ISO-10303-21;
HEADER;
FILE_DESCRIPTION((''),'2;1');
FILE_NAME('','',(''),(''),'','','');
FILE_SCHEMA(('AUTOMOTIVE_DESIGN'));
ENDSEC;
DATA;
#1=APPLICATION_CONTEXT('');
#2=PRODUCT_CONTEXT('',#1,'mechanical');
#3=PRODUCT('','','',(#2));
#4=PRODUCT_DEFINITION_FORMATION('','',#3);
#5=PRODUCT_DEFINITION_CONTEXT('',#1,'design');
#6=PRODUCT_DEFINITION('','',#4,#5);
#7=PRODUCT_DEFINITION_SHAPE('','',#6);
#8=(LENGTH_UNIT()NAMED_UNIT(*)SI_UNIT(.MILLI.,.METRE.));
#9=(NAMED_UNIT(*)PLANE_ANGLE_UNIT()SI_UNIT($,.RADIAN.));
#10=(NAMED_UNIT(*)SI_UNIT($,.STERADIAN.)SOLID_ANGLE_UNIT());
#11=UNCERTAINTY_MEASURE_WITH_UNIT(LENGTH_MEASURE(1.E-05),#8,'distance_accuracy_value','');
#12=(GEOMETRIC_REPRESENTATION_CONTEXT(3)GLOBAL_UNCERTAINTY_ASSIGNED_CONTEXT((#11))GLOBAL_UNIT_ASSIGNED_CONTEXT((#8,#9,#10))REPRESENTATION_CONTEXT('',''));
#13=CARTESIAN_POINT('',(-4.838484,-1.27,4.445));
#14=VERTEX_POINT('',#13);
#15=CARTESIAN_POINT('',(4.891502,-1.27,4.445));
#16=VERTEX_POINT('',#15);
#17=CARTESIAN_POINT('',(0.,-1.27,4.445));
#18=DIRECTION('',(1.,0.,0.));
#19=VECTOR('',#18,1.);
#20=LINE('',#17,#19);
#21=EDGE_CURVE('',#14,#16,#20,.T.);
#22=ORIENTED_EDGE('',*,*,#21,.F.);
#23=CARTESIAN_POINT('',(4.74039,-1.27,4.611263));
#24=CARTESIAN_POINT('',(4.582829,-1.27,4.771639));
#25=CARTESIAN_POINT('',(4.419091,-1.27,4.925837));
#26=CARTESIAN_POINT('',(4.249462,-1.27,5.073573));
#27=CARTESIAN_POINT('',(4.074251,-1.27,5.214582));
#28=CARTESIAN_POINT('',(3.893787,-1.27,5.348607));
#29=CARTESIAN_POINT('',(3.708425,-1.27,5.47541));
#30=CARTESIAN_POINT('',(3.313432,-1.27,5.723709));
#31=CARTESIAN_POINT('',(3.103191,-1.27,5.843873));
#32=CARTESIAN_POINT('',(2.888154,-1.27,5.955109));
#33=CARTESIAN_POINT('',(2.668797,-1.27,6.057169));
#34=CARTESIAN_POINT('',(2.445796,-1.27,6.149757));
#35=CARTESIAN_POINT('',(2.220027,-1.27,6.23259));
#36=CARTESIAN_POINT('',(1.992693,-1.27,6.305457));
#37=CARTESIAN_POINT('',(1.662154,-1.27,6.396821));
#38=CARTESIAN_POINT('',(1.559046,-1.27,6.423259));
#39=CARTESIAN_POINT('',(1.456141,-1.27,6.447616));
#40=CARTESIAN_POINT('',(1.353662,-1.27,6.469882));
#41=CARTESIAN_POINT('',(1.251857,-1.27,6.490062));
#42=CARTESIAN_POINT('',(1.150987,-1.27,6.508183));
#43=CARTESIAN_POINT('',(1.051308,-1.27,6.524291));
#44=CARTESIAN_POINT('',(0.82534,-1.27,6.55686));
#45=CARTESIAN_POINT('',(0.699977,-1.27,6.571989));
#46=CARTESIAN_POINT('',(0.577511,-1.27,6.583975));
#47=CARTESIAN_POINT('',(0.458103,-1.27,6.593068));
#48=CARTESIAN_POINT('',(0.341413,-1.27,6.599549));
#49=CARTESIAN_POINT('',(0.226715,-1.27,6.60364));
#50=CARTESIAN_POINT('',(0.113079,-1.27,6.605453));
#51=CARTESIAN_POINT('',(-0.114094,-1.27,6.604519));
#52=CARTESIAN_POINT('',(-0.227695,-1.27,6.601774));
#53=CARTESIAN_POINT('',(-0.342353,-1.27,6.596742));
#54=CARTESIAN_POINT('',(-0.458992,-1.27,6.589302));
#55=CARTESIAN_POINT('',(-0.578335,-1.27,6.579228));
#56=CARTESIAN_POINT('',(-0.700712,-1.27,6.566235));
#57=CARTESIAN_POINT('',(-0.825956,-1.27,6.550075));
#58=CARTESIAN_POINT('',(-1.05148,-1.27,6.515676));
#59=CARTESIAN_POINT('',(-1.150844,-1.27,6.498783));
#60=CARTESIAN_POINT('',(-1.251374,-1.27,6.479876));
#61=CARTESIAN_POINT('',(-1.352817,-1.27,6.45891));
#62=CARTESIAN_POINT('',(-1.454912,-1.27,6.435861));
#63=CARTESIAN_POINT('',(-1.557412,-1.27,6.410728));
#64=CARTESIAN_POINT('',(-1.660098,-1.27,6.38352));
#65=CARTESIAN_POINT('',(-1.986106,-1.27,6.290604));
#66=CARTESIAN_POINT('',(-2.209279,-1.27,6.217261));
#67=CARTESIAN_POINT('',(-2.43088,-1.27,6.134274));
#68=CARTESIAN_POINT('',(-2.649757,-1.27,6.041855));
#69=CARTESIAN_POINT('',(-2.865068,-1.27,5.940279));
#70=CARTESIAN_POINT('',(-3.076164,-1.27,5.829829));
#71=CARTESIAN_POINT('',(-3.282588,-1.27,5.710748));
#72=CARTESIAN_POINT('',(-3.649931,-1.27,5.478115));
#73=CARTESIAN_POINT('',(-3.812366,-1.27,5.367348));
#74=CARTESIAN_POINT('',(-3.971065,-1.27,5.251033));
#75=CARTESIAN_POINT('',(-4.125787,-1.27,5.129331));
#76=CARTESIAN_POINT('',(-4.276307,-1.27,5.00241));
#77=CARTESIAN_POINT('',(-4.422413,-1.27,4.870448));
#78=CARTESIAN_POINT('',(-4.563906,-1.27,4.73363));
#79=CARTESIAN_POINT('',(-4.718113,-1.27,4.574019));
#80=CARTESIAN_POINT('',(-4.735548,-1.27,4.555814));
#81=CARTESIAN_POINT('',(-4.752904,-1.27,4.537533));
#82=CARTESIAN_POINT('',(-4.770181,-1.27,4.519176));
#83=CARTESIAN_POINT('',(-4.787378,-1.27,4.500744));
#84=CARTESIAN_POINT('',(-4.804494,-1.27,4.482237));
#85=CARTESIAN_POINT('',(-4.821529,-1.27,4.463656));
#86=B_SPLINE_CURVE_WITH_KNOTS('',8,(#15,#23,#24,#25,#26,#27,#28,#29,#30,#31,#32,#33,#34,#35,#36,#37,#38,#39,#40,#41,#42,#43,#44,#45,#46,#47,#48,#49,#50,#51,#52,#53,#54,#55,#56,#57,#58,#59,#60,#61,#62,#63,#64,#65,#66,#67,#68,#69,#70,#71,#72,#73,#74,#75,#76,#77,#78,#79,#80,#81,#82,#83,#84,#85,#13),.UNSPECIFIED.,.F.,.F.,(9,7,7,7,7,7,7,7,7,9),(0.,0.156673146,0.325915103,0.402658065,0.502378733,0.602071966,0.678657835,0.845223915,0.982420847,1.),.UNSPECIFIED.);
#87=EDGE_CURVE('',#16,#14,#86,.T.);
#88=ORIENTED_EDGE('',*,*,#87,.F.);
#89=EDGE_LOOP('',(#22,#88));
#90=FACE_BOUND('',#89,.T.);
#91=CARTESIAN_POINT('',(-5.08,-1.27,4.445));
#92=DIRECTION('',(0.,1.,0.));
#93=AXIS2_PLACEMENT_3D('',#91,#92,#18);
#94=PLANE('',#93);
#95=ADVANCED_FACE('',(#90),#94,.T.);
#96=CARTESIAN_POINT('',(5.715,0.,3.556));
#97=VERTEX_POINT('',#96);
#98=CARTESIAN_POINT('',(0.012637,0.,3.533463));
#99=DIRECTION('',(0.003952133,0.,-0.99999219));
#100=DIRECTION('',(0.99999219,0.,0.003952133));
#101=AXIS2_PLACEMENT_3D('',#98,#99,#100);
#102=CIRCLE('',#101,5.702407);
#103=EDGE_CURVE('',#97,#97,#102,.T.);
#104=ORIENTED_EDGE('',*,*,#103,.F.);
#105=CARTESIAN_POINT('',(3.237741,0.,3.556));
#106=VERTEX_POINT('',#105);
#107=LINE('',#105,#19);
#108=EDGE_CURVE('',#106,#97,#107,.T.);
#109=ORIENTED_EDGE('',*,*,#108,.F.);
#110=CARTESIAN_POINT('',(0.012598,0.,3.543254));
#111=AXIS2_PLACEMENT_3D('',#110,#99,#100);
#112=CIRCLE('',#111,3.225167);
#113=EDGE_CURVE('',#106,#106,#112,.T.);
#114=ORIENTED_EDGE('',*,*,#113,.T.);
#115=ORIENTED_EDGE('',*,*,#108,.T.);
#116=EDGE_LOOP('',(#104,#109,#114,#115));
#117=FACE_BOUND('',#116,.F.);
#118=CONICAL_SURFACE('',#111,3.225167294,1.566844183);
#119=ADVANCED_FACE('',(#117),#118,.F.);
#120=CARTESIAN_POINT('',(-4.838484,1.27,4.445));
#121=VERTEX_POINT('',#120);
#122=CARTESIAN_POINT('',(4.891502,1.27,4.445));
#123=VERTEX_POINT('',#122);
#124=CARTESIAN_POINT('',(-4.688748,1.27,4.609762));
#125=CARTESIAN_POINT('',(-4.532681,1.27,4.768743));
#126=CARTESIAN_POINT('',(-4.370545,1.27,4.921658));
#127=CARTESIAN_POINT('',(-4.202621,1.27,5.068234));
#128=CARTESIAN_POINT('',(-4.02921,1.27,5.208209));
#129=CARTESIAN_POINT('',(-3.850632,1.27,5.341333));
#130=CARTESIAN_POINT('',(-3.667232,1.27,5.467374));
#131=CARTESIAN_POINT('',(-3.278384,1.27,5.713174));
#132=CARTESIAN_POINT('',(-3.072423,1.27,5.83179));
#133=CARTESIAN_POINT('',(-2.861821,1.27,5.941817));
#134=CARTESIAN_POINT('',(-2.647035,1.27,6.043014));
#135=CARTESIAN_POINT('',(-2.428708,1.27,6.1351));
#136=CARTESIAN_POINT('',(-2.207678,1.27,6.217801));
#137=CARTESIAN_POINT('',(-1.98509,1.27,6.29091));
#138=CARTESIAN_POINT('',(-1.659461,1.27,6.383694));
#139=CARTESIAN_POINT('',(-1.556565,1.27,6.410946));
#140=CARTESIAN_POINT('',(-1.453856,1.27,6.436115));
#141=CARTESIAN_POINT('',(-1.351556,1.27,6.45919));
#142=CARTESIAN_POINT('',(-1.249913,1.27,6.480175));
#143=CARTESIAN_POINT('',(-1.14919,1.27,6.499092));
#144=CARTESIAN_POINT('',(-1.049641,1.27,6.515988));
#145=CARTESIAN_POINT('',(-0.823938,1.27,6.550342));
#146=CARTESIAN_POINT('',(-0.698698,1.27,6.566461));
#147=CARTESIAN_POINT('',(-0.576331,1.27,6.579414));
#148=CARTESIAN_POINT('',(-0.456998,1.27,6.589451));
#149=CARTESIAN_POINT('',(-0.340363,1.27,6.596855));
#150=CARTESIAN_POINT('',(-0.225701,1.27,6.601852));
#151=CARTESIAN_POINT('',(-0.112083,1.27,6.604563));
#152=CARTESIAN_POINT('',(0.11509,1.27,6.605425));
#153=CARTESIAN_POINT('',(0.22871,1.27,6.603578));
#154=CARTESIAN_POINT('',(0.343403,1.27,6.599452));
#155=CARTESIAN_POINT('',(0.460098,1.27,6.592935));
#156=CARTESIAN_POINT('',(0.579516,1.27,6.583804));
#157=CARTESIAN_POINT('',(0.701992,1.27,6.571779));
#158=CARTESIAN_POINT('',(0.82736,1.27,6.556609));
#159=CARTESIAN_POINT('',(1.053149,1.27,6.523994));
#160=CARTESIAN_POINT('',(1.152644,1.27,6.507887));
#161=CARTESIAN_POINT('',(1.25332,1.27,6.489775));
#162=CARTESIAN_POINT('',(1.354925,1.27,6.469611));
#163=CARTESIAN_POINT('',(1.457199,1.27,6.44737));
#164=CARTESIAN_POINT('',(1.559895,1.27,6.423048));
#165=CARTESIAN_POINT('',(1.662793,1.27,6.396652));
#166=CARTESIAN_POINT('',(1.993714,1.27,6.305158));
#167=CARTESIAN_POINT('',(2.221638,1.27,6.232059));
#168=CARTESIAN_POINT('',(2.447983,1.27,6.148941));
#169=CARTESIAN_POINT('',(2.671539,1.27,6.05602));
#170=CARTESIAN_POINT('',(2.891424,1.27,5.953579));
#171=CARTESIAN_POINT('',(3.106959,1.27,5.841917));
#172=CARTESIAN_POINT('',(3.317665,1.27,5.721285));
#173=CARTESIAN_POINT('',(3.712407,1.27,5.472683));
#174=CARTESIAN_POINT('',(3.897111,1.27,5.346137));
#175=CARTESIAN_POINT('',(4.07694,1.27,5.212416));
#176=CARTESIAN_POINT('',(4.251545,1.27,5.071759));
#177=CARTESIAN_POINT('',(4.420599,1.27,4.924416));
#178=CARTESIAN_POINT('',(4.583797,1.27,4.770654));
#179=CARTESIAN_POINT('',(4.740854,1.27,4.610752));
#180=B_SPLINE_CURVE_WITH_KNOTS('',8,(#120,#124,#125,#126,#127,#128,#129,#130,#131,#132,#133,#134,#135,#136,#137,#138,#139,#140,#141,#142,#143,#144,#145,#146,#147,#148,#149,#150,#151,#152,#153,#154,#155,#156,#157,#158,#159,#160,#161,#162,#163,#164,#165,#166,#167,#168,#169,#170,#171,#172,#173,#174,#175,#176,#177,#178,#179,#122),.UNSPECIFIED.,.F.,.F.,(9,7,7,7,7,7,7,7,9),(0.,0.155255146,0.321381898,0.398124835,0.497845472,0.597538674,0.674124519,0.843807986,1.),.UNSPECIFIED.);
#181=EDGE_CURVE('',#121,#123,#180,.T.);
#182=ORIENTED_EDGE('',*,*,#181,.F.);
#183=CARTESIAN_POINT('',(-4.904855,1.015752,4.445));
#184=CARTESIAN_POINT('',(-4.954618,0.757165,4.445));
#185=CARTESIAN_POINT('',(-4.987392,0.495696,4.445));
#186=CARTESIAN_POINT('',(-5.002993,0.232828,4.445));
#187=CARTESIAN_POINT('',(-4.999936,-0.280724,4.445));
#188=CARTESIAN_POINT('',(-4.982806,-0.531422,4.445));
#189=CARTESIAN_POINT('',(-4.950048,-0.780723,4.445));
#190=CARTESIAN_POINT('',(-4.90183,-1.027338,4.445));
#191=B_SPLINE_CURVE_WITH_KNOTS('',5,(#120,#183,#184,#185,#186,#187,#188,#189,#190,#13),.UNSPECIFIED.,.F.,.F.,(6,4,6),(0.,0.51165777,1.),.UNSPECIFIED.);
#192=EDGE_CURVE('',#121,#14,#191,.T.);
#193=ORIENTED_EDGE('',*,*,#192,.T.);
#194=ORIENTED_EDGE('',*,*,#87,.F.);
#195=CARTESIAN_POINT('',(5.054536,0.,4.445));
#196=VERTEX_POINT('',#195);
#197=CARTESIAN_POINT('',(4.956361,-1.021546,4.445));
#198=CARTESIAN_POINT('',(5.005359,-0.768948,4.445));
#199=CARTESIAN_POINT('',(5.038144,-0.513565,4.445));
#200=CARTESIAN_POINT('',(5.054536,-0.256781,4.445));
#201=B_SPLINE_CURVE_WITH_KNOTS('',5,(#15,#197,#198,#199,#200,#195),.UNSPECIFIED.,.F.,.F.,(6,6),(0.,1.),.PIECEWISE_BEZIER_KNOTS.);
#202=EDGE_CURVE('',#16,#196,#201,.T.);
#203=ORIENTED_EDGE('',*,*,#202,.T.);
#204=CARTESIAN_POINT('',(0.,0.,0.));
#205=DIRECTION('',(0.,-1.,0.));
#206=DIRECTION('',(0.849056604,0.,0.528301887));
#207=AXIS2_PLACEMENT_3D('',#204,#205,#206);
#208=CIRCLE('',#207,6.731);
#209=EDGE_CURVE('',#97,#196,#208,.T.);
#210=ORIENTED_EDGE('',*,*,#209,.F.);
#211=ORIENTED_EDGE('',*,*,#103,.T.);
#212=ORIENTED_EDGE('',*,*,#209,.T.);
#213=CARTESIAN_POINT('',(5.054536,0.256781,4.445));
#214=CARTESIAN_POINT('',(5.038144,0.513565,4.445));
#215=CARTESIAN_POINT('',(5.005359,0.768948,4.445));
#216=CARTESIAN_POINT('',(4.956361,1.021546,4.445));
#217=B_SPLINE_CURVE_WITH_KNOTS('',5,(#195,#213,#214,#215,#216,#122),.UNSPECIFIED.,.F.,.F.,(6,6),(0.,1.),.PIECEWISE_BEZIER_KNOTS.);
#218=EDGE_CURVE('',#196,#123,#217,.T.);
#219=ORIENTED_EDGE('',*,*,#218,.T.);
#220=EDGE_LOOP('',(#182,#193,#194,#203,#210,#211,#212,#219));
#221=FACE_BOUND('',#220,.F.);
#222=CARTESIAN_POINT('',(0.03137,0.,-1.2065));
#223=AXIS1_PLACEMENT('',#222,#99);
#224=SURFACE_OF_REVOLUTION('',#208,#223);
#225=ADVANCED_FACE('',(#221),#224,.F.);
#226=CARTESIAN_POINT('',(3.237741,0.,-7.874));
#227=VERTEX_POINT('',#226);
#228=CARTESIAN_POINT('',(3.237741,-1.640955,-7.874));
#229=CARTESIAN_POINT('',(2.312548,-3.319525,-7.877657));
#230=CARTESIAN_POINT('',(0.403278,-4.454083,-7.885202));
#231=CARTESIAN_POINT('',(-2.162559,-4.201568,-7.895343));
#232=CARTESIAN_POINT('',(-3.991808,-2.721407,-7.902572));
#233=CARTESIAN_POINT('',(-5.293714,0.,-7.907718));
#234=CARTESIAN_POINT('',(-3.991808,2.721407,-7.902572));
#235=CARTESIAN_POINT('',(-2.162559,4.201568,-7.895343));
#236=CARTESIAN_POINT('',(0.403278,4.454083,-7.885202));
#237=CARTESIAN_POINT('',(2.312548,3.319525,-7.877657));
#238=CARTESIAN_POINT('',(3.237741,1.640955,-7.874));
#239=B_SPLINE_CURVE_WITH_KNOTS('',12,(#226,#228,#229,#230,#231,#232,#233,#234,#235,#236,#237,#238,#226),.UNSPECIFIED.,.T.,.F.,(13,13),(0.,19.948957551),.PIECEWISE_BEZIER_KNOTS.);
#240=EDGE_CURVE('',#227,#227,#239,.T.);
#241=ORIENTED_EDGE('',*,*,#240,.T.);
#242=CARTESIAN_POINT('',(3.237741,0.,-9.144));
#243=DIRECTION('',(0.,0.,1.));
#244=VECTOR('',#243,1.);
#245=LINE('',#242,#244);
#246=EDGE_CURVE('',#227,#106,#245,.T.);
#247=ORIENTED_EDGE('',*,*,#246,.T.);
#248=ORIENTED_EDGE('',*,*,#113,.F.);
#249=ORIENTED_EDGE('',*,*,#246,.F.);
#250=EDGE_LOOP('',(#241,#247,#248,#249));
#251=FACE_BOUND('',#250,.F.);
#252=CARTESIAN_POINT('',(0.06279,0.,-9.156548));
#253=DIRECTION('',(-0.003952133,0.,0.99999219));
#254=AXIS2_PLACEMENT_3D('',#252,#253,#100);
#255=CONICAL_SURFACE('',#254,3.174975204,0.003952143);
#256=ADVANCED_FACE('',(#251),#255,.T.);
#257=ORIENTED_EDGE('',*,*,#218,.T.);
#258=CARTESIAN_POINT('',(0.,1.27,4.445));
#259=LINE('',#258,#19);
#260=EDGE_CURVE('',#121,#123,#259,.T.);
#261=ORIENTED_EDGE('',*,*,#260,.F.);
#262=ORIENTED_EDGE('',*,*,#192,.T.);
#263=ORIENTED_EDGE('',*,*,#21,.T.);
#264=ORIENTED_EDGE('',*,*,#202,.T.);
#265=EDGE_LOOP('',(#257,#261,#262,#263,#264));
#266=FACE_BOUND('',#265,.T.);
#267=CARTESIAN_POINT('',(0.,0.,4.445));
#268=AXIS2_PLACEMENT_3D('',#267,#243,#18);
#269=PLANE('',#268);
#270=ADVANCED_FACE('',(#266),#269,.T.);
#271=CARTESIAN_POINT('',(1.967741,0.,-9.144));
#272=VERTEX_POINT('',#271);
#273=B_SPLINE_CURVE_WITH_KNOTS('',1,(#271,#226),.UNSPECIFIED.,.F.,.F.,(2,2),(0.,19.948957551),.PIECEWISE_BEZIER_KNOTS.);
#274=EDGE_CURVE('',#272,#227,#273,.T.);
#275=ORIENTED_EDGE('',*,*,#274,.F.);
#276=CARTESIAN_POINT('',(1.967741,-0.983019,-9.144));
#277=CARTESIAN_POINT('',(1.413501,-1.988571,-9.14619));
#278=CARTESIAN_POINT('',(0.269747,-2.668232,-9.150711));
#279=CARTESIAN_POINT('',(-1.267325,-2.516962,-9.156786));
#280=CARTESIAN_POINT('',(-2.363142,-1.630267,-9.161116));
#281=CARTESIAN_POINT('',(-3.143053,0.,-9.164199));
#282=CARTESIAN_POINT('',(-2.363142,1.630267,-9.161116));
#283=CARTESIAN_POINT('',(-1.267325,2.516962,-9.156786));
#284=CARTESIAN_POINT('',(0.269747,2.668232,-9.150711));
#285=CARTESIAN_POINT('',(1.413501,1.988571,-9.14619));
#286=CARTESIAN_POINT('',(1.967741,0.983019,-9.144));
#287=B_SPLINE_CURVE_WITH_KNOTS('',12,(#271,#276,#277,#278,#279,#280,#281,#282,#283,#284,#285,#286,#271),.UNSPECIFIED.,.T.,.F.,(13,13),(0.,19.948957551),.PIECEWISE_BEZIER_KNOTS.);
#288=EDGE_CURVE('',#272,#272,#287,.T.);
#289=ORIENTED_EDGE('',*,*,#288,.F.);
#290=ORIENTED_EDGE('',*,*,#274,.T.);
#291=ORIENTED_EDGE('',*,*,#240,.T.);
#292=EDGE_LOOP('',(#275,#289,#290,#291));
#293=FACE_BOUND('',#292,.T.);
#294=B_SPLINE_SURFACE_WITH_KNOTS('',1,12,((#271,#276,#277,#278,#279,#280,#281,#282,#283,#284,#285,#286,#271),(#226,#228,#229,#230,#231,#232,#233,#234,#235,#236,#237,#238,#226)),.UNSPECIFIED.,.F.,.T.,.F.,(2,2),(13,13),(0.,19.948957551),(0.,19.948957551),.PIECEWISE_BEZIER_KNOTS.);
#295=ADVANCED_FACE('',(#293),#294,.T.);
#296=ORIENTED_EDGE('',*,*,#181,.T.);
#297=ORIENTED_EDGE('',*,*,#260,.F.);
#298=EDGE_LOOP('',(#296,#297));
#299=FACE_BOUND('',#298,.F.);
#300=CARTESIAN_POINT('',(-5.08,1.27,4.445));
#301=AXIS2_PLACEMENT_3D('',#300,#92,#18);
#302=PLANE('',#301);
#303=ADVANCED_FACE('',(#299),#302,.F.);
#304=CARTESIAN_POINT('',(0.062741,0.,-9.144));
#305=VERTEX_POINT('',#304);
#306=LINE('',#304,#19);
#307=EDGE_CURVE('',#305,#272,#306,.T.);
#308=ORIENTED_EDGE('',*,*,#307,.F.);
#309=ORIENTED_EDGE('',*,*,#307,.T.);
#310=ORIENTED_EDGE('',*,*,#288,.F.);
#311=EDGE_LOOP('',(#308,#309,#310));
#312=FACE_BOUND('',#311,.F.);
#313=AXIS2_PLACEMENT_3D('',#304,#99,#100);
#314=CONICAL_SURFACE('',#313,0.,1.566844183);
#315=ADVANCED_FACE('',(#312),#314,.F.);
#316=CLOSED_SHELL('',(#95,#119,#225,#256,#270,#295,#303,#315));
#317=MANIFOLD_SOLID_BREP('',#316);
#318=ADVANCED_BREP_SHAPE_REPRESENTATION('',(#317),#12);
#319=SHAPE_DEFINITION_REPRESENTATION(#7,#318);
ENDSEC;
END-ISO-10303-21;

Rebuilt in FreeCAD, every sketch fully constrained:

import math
import FreeCAD as App
import Part
import Sketcher

V = App.Vector
Q = App.Units.Quantity


def edges_at(feature, points):
    """Names of the edges that pass closest to the given points."""
    edges = feature.Shape.Edges
    near = lambda p: min(range(len(edges)), key=lambda i: edges[i].distToShape(Part.Vertex(*p))[0])
    return sorted({f"Edge{near(p) + 1}" for p in points})


def add_polygon(sketch, points):
    """Adds a closed chain of lines whose ends are joined by coincident constraints."""
    first, n = sketch.GeometryCount, len(points)
    for a, b in zip(points, points[1:] + points[:1]):
        sketch.addGeometry(Part.LineSegment(App.Vector(*a, 0), App.Vector(*b, 0)), False)
    for i in range(n):
        sketch.addConstraint(Sketcher.Constraint("Coincident", first + i, 2, first + (i + 1) % n, 1))

doc = App.newDocument("Part")
body = doc.addObject("PartDesign::Body", "Body")

# Sketch on XZ plane
sketch1 = body.newObject("Sketcher::SketchObject", "Sketch")
sketch1.AttachmentSupport = (doc.getObject("XZ_Plane"), [""])
sketch1.MapMode = "FlatFace"
sketch1.addGeometry([
    Part.LineSegment(V(3.237741, 3.556, 0), V(5.715, 3.556, 0)),  # 0
    Part.ArcOfCircle(Part.Circle(V(0, 0, 0), V(0, 0, 1), 6.731), math.radians(31.890792), math.radians(90)),  # 1
    Part.LineSegment(V(0, 6.731, 0), V(0.062741, -9.144, 0)),  # 2
    Part.LineSegment(V(0.062741, -9.144, 0), V(3.237741, -9.144, 0)),  # 3
    Part.LineSegment(V(3.237741, -9.144, 0), V(3.237741, 3.556, 0)),  # 4
], False)
sketch1.addGeometry(Part.LineSegment(V(0, 6.731, 0), V(0.06279, -9.156548, 0)), True)  # axis
sketch1.addConstraint([
    Sketcher.Constraint("Coincident", 0, 2, 1, 1),
    Sketcher.Constraint("Coincident", 1, 2, 2, 1),
    Sketcher.Constraint("Coincident", 2, 2, 3, 1),
    Sketcher.Constraint("Coincident", 3, 2, 4, 1),
    Sketcher.Constraint("Coincident", 4, 2, 0, 1),
    Sketcher.Constraint("Horizontal", 0),
    Sketcher.Constraint("Horizontal", 3),
    Sketcher.Constraint("Vertical", 4),
    Sketcher.Constraint("Coincident", 1, 3, -1, 1),
    Sketcher.Constraint("Coincident", 5, 1, 1, 2),
    Sketcher.Constraint("PointOnObject", 1, 2, -2),
    Sketcher.Constraint("Parallel", 2, 5),
    Sketcher.Constraint("DistanceY", 4, 1, 4, 2, Q("0.5 in")),
    Sketcher.Constraint("Radius", 1, Q("0.265 in")),
    Sketcher.Constraint("DistanceX", 3, 1, 3, 2, Q("0.125 in")),
    Sketcher.Constraint("DistanceY", -1, 1, 0, 2, Q("0.14 in")),
    Sketcher.Constraint("DistanceX", 0, 1, 0, 2, 2.477259),
    Sketcher.Constraint("Distance", 5, 15.887672),
])
revolution = body.newObject("PartDesign::Revolution", "Revolution")
revolution.Profile = sketch1
revolution.ReferenceAxis = (sketch1, ["Axis0"])
revolution.Angle = 360
doc.recompute()

chamfer = body.newObject("PartDesign::Chamfer", "Chamfer")
chamfer.Base = (revolution, edges_at(revolution, [(-3.112, 0, -9.169)]))
chamfer.Size = Q("0.05 in")

# Sketch on XY plane
sketch2 = body.newObject("Sketcher::SketchObject", "Sketch001")
sketch2.AttachmentSupport = (doc.getObject("XY_Plane"), [""])
sketch2.MapMode = "FlatFace"
sketch2.AttachmentOffset = App.Placement(V(0, 0, 0.175 * 25.4), App.Rotation())
add_polygon(sketch2, [(-5.08, 1.27), (-5.08, -1.27), (5.08, -1.27), (5.08, 1.27)])  # lines 0-3
sketch2.addConstraint([
    Sketcher.Constraint("Vertical", 0),
    Sketcher.Constraint("Horizontal", 1),
    Sketcher.Constraint("Vertical", 2),
    Sketcher.Constraint("Horizontal", 3),
    Sketcher.Constraint("Symmetric", 0, 2, 2, 2, -1, 1),
    Sketcher.Constraint("DistanceX", 1, 1, 1, 2, Q("0.4 in")),
    Sketcher.Constraint("DistanceY", 0, 2, 0, 1, Q("0.1 in")),
])
pocket1 = body.newObject("PartDesign::Pocket", "Pocket")
pocket1.Profile = sketch2
pocket1.Length = Q("0.825 in")
pocket1.Reversed = True

doc.recompute()
